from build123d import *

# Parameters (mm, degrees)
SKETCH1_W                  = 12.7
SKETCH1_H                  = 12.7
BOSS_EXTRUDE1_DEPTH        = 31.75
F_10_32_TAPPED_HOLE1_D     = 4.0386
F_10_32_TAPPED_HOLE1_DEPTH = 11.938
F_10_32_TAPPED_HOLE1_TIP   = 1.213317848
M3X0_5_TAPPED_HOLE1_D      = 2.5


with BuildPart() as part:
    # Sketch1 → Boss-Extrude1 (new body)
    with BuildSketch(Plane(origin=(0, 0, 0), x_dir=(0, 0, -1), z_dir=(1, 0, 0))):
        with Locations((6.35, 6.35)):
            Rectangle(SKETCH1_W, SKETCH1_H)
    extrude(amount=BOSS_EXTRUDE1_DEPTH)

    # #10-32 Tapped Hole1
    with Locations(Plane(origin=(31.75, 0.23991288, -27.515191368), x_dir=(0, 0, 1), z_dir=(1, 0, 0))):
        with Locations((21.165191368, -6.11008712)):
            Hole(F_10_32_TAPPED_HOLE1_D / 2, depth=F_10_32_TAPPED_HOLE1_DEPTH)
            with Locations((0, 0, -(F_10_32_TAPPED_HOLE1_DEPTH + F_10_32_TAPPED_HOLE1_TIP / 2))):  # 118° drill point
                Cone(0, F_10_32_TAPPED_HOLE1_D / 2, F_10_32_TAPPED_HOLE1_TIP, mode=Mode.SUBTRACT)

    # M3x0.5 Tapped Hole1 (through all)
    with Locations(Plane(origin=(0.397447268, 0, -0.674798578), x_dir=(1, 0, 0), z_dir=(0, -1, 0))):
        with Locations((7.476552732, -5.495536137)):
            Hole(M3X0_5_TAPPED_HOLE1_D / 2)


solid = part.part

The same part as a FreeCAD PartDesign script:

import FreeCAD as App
import Part
import Sketcher
from FreeCAD import Vector
Q = App.Units.Quantity

doc = App.newDocument("Part")
body = doc.addObject("PartDesign::Body", "Body")

sketch1 = body.newObject("Sketcher::SketchObject", "Sketch")
sketch1.AttachmentSupport = (doc.getObject("YZ_Plane"), [""])
sketch1.MapMode = "FlatFace"
sketch1.addGeometry([
    Part.LineSegment(Vector(13, 0, 0), Vector(0, 0, 0)),
    Part.LineSegment(Vector(0, 0, 0), Vector(0, -13, 0)),
    Part.LineSegment(Vector(0, -13, 0), Vector(13, -13, 0)),
    Part.LineSegment(Vector(13, -13, 0), Vector(13, 0, 0)),
], False)
sketch1.addConstraint([
    Sketcher.Constraint("Coincident", 0, 2, 1, 1),
    Sketcher.Constraint("Coincident", 1, 2, 2, 1),
    Sketcher.Constraint("Coincident", 2, 2, 3, 1),
    Sketcher.Constraint("Coincident", 3, 2, 0, 1),
    Sketcher.Constraint("Horizontal", 0),
    Sketcher.Constraint("Vertical", 1),
    Sketcher.Constraint("Horizontal", 2),
    Sketcher.Constraint("Vertical", 3),
    Sketcher.Constraint("Coincident", 0, 2, -1, 1),
    Sketcher.Constraint("Equal", 2, 1),
    Sketcher.Constraint("DistanceX", 0, 2, 0, 1, Q("0.5 in")),
])
pad1 = body.newObject("PartDesign::Pad", "Pad")
pad1.Profile = sketch1
pad1.Length = Q("1.25 in")

sketch2 = body.newObject("Sketcher::SketchObject", "Sketch001")
sketch2.AttachmentSupport = (doc.getObject("YZ_Plane"), [""])
sketch2.MapMode = "FlatFace"
sketch2.AttachmentOffset = App.Placement(Vector(0, 0, 1.25 * 25.4), App.Rotation())
sketch2.addGeometry(Part.Circle(Vector(6.3, -6.3, 0), Vector(0, 0, 1), 2), False)
sketch2.addConstraint([
    Sketcher.Constraint("Diameter", 0, Q("0.159 in")),
    Sketcher.Constraint("DistanceX", -1, 1, 0, 3, Q("0.25 in")),
    Sketcher.Constraint("DistanceY", 0, 3, -1, 1, Q("0.25 in")),
])
doc.recompute()
hole = body.newObject("PartDesign::Hole", "Hole")
hole.Profile = sketch2
hole.ThreadType = "None"
hole.Diameter = Q("0.159 in")
hole.DepthType = "Dimension"
hole.Depth = Q("0.47 in")
hole.DrillPoint = "Angled"
hole.DrillPointAngle = 118

sketch3 = body.newObject("Sketcher::SketchObject", "Sketch002")
sketch3.AttachmentSupport = (doc.getObject("XZ_Plane"), [""])
sketch3.MapMode = "FlatFace"
sketch3.addGeometry(Part.Circle(Vector(7.9, -6.2, 0), Vector(0, 0, 1), 1.2), False)
sketch3.addConstraint([
    Sketcher.Constraint("Diameter", 0, Q("2.5 mm")),
    Sketcher.Constraint("DistanceX", -1, 1, 0, 3, Q("0.31 in")),
    Sketcher.Constraint("DistanceY", 0, 3, -1, 1, Q("6.170335 mm")),
])
doc.recompute()
hole2 = body.newObject("PartDesign::Hole", "Hole001")
hole2.Profile = sketch3
hole2.ThreadType = "None"
hole2.Diameter = 2.5
hole2.DepthType = "ThroughAll"

doc.recompute()
